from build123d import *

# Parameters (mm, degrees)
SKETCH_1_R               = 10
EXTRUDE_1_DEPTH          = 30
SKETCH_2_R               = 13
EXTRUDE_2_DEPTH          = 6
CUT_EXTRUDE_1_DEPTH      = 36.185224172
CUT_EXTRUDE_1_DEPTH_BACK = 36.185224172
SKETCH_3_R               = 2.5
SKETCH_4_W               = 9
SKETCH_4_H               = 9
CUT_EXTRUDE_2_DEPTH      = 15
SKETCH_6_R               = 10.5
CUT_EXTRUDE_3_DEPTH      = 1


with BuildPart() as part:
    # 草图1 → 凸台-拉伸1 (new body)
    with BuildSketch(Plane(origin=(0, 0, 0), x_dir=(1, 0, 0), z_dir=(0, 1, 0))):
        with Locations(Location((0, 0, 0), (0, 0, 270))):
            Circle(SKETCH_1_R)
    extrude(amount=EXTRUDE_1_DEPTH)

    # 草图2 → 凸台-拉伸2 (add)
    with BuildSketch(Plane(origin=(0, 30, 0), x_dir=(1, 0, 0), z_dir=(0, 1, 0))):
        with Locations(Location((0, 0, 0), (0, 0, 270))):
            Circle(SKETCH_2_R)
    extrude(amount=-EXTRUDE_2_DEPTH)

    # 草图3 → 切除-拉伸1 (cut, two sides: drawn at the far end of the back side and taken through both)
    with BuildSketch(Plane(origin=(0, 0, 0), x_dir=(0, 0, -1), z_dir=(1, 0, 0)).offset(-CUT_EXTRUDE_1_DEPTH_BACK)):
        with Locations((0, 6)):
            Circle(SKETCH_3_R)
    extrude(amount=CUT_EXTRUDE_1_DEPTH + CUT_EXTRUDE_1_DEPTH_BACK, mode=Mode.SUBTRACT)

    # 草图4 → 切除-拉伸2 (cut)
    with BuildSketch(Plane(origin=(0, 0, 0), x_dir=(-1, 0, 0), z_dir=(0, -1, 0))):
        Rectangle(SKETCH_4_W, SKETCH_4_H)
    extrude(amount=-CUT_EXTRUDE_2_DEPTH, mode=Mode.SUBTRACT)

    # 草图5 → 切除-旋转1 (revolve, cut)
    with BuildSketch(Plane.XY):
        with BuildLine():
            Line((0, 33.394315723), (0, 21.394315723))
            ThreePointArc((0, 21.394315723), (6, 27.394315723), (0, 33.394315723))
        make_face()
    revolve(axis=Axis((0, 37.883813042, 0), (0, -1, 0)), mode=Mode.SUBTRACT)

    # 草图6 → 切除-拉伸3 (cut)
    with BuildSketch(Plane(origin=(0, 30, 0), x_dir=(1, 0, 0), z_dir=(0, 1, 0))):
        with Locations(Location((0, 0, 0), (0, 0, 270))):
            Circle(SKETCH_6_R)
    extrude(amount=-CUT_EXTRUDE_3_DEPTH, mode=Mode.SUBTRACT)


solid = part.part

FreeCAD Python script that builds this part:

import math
import FreeCAD as App
import Part
import Sketcher
Q = App.Units.Quantity

doc = App.newDocument("Part")
body = doc.addObject("PartDesign::Body", "Body")

# Sketch on XZ plane
sketch1 = doc.addObject("Sketcher::SketchObject", "Sketch")
body.addObject(sketch1)
sketch1.AttachmentSupport = (doc.XZ_Plane, [""])
sketch1.MapMode = "FlatFace"
sketch1.addGeometry(Part.Circle(App.Vector(0, 0, 0), App.Vector(0, 0, 1), 10), False)
sketch1.addConstraint([
    Sketcher.Constraint("Coincident", 0, 3, -1, 1),
    Sketcher.Constraint("Diameter", 0, Q("20 mm")),
])
pad1 = doc.addObject("PartDesign::Pad", "Pad")
body.addObject(pad1)
pad1.Profile = sketch1
pad1.Length = 30
pad1.Reversed = True

# Sketch on XZ plane
sketch2 = doc.addObject("Sketcher::SketchObject", "Sketch001")
body.addObject(sketch2)
sketch2.AttachmentSupport = (doc.XZ_Plane, [""])
sketch2.MapMode = "FlatFace"
sketch2.AttachmentOffset = App.Placement(App.Vector(0, 0, -30), App.Rotation())
sketch2.addGeometry(Part.Circle(App.Vector(0, 0, 0), App.Vector(0, 0, 1), 13), False)
sketch2.addConstraint([
    Sketcher.Constraint("Coincident", 0, 3, -1, 1),
    Sketcher.Constraint("Diameter", 0, Q("26 mm")),
])
pad2 = doc.addObject("PartDesign::Pad", "Pad001")
body.addObject(pad2)
pad2.Profile = sketch2
pad2.Length = 6

# Sketch on YZ plane
sketch3 = doc.addObject("Sketcher::SketchObject", "Sketch002")
body.addObject(sketch3)
sketch3.AttachmentSupport = (doc.YZ_Plane, [""])
sketch3.MapMode = "FlatFace"
sketch3.addGeometry(Part.Circle(App.Vector(6, 0, 0), App.Vector(0, 0, 1), 2.5), False)
sketch3.addConstraint([
    Sketcher.Constraint("PointOnObject", 0, 3, -1),
    Sketcher.Constraint("Diameter", 0, Q("5 mm")),
    Sketcher.Constraint("DistanceX", -1, 1, 0, 3, Q("6 mm")),
])
pocket1 = doc.addObject("PartDesign::Pocket", "Pocket")
body.addObject(pocket1)
pocket1.Profile = sketch3
pocket1.Type = "ThroughAll"
pocket1.Midplane = True

# Sketch on XZ plane
sketch4 = doc.addObject("Sketcher::SketchObject", "Sketch003")
body.addObject(sketch4)
sketch4.AttachmentSupport = (doc.XZ_Plane, [""])
sketch4.MapMode = "FlatFace"
sketch4.addGeometry([
    Part.LineSegment(App.Vector(4, -4, 0), App.Vector(4, 4, 0)),
    Part.LineSegment(App.Vector(4, 4, 0), App.Vector(-4, 4, 0)),
    Part.LineSegment(App.Vector(-4, 4, 0), App.Vector(-4, -4, 0)),
    Part.LineSegment(App.Vector(-4, -4, 0), App.Vector(4, -4, 0)),
], False)
sketch4.addConstraint([
    Sketcher.Constraint("Coincident", 0, 2, 1, 1),
    Sketcher.Constraint("Coincident", 1, 2, 2, 1),
    Sketcher.Constraint("Coincident", 2, 2, 3, 1),
    Sketcher.Constraint("Coincident", 3, 2, 0, 1),
    Sketcher.Constraint("Vertical", 0),
    Sketcher.Constraint("Horizontal", 1),
    Sketcher.Constraint("Vertical", 2),
    Sketcher.Constraint("Horizontal", 3),
    Sketcher.Constraint("Symmetric", 0, 2, 2, 2, -1, 1),
    Sketcher.Constraint("Equal", 3, 0),
    Sketcher.Constraint("DistanceX", 1, 2, 1, 1, Q("9 mm")),
])
pocket2 = doc.addObject("PartDesign::Pocket", "Pocket001")
body.addObject(pocket2)
pocket2.Profile = sketch4
pocket2.Length = 15

# Sketch on XY plane
sketch5 = doc.addObject("Sketcher::SketchObject", "Sketch004")
body.addObject(sketch5)
sketch5.AttachmentSupport = (doc.XY_Plane, [""])
sketch5.MapMode = "FlatFace"
sketch5.addGeometry([
    Part.LineSegment(App.Vector(0, 33, 0), App.Vector(0, 21, 0)),
    Part.ArcOfCircle(Part.Circle(App.Vector(0, 27, 0), App.Vector(0, 0, 1), 6), math.radians(-90), math.radians(90)),
], False)
sketch5.addConstraint([
    Sketcher.Constraint("Coincident", 0, 1, 1, 2),
    Sketcher.Constraint("Coincident", 1, 1, 0, 2),
    Sketcher.Constraint("Vertical", 0),
    Sketcher.Constraint("PointOnObject", 1, 3, -2),
    Sketcher.Constraint("PointOnObject", 0, 1, -2),
    Sketcher.Constraint("Radius", 1, Q("6 mm")),
    Sketcher.Constraint("DistanceY", -1, 1, 1, 3, Q("27.394316 mm")),
])
groove = doc.addObject("PartDesign::Groove", "Groove")
body.addObject(groove)
groove.Profile = sketch5
groove.ReferenceAxis = (sketch5, ["V_Axis"])
groove.Angle = 360

# Sketch on XZ plane
sketch6 = doc.addObject("Sketcher::SketchObject", "Sketch005")
body.addObject(sketch6)
sketch6.AttachmentSupport = (doc.XZ_Plane, [""])
sketch6.MapMode = "FlatFace"
sketch6.AttachmentOffset = App.Placement(App.Vector(0, 0, -30), App.Rotation())
sketch6.addGeometry(Part.Circle(App.Vector(0, 0, 0), App.Vector(0, 0, 1), 10), False)
sketch6.addConstraint([
    Sketcher.Constraint("Coincident", 0, 3, -1, 1),
    Sketcher.Constraint("Diameter", 0, Q("21 mm")),
])
pocket3 = doc.addObject("PartDesign::Pocket", "Pocket002")
body.addObject(pocket3)
pocket3.Profile = sketch6
pocket3.Length = 1
pocket3.Reversed = True

doc.recompute()
